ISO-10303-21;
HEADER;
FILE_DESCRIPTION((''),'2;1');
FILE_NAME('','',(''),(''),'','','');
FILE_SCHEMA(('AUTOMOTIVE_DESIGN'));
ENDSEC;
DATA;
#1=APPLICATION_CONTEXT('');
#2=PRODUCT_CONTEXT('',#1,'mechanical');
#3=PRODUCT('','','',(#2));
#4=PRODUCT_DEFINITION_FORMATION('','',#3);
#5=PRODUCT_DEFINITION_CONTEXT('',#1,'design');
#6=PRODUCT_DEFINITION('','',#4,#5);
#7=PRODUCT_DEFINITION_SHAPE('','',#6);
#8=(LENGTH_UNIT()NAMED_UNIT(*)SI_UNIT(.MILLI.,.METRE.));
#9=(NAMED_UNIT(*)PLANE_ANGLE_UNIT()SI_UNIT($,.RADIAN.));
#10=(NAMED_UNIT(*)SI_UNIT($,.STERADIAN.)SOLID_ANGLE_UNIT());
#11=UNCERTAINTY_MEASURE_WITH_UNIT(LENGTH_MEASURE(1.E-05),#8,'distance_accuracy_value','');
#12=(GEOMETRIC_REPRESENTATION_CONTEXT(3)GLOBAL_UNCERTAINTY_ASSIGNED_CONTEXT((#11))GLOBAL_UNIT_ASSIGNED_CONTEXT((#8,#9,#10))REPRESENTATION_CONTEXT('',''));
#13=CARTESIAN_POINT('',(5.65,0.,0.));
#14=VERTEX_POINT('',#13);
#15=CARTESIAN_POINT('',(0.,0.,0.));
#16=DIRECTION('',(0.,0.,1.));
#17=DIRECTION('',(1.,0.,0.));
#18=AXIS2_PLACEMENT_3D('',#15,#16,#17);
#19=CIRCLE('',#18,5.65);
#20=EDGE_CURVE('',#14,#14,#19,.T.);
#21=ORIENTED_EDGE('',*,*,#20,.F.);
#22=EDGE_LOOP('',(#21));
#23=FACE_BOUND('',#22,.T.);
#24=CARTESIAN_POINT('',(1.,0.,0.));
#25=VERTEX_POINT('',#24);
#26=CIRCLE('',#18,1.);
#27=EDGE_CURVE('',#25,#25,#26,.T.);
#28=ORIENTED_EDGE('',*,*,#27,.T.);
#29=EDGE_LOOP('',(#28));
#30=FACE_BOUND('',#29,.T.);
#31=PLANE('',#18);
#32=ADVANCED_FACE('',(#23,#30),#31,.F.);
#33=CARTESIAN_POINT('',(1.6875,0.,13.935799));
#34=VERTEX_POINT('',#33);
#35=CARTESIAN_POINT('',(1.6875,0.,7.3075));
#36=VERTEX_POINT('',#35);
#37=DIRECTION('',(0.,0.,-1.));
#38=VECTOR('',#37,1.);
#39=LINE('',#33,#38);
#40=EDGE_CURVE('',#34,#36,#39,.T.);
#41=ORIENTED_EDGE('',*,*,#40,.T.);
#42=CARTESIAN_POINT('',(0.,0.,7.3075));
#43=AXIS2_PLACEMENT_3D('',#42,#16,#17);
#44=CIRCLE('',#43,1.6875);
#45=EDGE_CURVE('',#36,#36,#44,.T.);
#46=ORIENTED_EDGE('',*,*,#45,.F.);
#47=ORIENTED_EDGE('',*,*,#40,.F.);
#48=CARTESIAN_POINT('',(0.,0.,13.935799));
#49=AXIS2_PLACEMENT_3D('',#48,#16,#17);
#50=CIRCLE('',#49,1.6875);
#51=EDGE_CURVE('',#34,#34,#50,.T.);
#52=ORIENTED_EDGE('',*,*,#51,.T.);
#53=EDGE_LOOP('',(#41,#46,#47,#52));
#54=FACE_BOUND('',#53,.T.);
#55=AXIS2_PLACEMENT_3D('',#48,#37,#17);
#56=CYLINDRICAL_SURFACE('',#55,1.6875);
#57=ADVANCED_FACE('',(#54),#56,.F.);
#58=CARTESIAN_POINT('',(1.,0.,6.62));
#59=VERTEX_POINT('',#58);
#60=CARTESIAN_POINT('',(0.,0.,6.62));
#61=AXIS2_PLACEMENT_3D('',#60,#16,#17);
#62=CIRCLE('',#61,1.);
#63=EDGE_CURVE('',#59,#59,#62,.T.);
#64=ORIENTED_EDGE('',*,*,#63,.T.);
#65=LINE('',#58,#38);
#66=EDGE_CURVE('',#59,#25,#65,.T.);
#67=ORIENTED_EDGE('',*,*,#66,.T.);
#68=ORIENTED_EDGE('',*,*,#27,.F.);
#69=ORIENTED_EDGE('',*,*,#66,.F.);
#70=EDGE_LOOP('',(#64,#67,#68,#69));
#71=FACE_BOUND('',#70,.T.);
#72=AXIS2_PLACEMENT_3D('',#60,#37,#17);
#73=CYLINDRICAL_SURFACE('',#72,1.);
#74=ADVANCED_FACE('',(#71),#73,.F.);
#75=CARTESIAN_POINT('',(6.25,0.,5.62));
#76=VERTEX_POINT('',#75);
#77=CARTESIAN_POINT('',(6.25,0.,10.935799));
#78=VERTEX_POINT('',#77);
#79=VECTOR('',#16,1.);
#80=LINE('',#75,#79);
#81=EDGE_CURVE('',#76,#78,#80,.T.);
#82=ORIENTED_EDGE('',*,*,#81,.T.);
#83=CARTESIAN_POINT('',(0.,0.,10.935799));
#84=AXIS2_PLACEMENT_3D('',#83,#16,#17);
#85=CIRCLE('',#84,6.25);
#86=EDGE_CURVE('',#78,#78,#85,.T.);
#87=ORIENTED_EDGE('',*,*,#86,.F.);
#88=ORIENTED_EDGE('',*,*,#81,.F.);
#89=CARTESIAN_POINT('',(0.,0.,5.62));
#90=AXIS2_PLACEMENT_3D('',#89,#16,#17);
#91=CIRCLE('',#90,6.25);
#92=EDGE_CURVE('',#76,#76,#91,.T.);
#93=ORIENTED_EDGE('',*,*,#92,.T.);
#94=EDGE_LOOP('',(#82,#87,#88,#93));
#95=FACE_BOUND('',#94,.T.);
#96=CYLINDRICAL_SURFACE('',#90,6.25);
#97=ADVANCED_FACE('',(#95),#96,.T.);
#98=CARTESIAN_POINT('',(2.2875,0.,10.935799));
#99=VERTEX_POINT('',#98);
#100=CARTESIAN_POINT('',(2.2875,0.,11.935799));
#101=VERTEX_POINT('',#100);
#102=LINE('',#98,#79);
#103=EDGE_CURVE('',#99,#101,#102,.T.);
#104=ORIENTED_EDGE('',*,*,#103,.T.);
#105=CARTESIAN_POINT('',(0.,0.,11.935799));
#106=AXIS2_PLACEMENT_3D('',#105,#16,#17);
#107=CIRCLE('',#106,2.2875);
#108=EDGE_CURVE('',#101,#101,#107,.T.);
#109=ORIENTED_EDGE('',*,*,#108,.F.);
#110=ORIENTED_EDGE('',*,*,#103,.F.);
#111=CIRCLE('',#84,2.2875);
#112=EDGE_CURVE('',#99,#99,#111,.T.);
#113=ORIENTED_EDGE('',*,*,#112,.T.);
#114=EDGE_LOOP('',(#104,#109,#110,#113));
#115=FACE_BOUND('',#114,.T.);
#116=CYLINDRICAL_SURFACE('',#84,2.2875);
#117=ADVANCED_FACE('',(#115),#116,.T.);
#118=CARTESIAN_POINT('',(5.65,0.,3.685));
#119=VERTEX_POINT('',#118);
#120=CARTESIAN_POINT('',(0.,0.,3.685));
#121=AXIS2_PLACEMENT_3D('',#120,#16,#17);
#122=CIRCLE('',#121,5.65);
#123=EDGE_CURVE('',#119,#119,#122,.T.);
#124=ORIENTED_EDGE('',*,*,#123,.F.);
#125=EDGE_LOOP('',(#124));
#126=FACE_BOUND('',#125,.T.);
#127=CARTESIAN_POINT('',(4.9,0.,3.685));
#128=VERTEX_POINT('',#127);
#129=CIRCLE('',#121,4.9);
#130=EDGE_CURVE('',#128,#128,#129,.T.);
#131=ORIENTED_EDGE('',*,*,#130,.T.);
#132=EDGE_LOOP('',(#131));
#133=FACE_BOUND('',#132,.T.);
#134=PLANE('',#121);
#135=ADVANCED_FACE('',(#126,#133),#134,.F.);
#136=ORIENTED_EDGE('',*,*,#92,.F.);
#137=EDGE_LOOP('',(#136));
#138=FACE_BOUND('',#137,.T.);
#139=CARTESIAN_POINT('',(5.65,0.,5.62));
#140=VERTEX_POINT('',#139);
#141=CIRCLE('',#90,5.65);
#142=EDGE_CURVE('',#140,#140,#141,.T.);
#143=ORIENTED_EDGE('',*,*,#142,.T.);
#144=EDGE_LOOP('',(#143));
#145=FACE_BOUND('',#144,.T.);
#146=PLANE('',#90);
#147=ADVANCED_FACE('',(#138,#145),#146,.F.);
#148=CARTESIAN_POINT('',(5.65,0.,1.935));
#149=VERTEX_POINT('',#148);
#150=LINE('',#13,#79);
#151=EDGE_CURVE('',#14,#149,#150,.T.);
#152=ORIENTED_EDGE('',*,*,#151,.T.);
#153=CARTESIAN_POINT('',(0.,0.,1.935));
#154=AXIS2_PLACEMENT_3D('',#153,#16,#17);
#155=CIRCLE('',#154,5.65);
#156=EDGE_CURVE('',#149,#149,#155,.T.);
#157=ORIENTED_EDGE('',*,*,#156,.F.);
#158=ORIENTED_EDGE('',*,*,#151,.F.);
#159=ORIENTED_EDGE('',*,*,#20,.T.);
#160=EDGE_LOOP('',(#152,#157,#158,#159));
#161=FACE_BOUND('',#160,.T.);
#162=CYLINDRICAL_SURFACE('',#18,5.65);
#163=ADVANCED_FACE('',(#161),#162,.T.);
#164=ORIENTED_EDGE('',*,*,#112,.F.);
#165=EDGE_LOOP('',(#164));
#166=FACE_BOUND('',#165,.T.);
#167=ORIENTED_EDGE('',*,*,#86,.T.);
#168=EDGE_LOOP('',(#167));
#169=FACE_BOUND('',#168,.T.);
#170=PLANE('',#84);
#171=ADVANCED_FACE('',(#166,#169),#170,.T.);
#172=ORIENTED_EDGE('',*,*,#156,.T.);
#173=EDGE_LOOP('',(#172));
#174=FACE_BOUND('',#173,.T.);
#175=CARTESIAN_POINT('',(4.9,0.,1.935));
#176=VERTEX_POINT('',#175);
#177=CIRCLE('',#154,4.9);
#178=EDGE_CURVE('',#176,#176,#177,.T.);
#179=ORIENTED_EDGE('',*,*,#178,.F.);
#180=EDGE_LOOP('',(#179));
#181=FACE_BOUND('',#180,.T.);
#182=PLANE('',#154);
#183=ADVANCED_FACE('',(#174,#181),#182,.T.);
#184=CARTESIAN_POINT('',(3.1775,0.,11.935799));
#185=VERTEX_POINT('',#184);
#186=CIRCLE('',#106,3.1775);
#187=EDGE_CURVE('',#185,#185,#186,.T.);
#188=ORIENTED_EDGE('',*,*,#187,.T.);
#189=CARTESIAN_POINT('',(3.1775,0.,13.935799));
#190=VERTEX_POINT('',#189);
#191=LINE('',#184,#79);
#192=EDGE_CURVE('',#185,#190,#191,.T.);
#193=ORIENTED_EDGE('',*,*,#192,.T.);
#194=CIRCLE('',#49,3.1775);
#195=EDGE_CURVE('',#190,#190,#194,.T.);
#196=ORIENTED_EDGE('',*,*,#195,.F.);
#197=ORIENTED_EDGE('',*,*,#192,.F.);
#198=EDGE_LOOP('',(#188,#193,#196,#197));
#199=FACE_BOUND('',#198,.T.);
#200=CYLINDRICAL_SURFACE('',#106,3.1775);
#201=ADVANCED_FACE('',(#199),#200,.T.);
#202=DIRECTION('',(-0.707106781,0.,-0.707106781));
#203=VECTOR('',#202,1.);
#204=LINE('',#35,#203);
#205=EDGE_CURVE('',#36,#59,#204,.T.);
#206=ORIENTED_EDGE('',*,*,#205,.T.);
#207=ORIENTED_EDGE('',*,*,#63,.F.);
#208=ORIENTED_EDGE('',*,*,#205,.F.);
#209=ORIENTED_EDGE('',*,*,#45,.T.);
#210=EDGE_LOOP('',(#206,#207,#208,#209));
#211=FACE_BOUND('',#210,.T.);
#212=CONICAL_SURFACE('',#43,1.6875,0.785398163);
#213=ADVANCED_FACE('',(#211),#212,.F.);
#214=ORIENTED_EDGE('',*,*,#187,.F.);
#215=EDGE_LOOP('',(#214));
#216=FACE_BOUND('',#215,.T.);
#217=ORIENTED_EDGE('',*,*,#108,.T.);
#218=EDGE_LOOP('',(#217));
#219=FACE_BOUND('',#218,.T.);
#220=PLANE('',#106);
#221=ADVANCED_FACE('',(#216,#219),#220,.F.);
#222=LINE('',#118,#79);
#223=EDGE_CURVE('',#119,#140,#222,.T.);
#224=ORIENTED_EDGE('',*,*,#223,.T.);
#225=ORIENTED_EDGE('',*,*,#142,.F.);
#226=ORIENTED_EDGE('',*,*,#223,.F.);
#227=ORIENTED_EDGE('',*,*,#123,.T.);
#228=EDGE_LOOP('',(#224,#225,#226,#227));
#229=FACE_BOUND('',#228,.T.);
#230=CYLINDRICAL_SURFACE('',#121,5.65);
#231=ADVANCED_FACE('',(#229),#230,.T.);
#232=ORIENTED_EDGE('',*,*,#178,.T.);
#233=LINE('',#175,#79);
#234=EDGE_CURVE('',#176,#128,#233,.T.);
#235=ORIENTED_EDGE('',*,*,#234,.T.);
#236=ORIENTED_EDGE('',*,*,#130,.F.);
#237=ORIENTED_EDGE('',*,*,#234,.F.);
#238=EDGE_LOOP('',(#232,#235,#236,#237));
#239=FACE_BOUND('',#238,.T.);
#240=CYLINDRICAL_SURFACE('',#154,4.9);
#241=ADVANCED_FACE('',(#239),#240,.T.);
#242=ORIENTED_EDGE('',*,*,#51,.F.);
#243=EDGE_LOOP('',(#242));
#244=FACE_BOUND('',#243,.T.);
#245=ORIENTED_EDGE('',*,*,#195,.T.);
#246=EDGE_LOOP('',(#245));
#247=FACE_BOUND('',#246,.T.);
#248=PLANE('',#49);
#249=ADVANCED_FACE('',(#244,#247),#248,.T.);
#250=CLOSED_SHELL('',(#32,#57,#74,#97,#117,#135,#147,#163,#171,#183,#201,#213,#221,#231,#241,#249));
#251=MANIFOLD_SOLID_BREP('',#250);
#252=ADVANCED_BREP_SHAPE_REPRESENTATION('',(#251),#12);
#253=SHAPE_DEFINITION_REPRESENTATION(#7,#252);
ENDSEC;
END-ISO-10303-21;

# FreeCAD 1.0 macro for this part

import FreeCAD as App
import Part
import Sketcher

V = App.Vector
Q = App.Units.Quantity


def add_polygon(sketch, points):
    """Adds a closed chain of lines whose ends are joined by coincident constraints."""
    first, n = sketch.GeometryCount, len(points)
    for a, b in zip(points, points[1:] + points[:1]):
        sketch.addGeometry(Part.LineSegment(App.Vector(*a, 0), App.Vector(*b, 0)), False)
    for i in range(n):
        sketch.addConstraint(Sketcher.Constraint("Coincident", first + i, 2, first + (i + 1) % n, 1))

doc = App.newDocument("Part")
body = doc.addObject("PartDesign::Body", "Body")

# Sketch on XZ plane
sketch1 = body.newObject("Sketcher::SketchObject", "Sketch")
sketch1.AttachmentSupport = (doc.getObject("XZ_Plane"), [""])
sketch1.MapMode = "FlatFace"
add_polygon(sketch1, [(1, 6.6), (1, 0), (5.7, 0), (5.7, 1.9), (4.9, 1.9), (4.9, 3.7), (5.7, 3.7), (5.7, 5.6), (6.2, 5.6), (6.2, 10.9), (2.3, 10.9), (2.3, 11.9), (3.2, 11.9), (3.2, 13.9), (1.7, 13.9), (1.7, 7.3)])  # lines 0-15
sketch1.addConstraint([
    Sketcher.Constraint("Vertical", 0),
    Sketcher.Constraint("Horizontal", 1),
    Sketcher.Constraint("Vertical", 2),
    Sketcher.Constraint("Horizontal", 3),
    Sketcher.Constraint("Vertical", 4),
    Sketcher.Constraint("Horizontal", 5),
    Sketcher.Constraint("Vertical", 6),
    Sketcher.Constraint("Horizontal", 7),
    Sketcher.Constraint("Vertical", 8),
    Sketcher.Constraint("Horizontal", 9),
    Sketcher.Constraint("Vertical", 10),
    Sketcher.Constraint("Horizontal", 11),
    Sketcher.Constraint("Vertical", 12),
    Sketcher.Constraint("Horizontal", 13),
    Sketcher.Constraint("Vertical", 14),
    Sketcher.Constraint("PointOnObject", 0, 2, -1),
    Sketcher.Constraint("Vertical", 2, 2, 5, 2),
    Sketcher.Constraint("Equal", 2, 6),
    Sketcher.Constraint("DistanceY", 10, 1, 10, 2, 1.0),
    Sketcher.Constraint("DistanceY", 12, 1, 12, 2, 2.0),
    Sketcher.Constraint("Angle", 15, Q("-135 deg")),
    Sketcher.Constraint("DistanceX", 7, 1, 7, 2, 0.6),
    Sketcher.Constraint("DistanceX", -1, 1, 0, 2, 1.0),
    Sketcher.Constraint("DistanceY", 6, 2, 15, 2, 1.0),
    Sketcher.Constraint("DistanceX", 1, 1, 1, 2, 4.65),
    Sketcher.Constraint("DistanceX", 3, 2, 3, 1, 0.75),
    Sketcher.Constraint("DistanceX", 11, 1, 11, 2, 0.89),
    Sketcher.Constraint("DistanceX", 13, 2, 13, 1, 1.49),
    Sketcher.Constraint("DistanceY", 0, 2, 0, 1, 6.62),
    Sketcher.Constraint("DistanceY", 4, 1, 4, 2, 1.75),
    Sketcher.Constraint("DistanceX", 9, 2, 9, 1, 3.9625),
    Sketcher.Constraint("DistanceY", 8, 1, 8, 2, 5.315799),
])
revolution = body.newObject("PartDesign::Revolution", "Revolution")
revolution.Profile = sketch1
revolution.ReferenceAxis = (sketch1, ["V_Axis"])
revolution.Angle = 360

doc.recompute()
